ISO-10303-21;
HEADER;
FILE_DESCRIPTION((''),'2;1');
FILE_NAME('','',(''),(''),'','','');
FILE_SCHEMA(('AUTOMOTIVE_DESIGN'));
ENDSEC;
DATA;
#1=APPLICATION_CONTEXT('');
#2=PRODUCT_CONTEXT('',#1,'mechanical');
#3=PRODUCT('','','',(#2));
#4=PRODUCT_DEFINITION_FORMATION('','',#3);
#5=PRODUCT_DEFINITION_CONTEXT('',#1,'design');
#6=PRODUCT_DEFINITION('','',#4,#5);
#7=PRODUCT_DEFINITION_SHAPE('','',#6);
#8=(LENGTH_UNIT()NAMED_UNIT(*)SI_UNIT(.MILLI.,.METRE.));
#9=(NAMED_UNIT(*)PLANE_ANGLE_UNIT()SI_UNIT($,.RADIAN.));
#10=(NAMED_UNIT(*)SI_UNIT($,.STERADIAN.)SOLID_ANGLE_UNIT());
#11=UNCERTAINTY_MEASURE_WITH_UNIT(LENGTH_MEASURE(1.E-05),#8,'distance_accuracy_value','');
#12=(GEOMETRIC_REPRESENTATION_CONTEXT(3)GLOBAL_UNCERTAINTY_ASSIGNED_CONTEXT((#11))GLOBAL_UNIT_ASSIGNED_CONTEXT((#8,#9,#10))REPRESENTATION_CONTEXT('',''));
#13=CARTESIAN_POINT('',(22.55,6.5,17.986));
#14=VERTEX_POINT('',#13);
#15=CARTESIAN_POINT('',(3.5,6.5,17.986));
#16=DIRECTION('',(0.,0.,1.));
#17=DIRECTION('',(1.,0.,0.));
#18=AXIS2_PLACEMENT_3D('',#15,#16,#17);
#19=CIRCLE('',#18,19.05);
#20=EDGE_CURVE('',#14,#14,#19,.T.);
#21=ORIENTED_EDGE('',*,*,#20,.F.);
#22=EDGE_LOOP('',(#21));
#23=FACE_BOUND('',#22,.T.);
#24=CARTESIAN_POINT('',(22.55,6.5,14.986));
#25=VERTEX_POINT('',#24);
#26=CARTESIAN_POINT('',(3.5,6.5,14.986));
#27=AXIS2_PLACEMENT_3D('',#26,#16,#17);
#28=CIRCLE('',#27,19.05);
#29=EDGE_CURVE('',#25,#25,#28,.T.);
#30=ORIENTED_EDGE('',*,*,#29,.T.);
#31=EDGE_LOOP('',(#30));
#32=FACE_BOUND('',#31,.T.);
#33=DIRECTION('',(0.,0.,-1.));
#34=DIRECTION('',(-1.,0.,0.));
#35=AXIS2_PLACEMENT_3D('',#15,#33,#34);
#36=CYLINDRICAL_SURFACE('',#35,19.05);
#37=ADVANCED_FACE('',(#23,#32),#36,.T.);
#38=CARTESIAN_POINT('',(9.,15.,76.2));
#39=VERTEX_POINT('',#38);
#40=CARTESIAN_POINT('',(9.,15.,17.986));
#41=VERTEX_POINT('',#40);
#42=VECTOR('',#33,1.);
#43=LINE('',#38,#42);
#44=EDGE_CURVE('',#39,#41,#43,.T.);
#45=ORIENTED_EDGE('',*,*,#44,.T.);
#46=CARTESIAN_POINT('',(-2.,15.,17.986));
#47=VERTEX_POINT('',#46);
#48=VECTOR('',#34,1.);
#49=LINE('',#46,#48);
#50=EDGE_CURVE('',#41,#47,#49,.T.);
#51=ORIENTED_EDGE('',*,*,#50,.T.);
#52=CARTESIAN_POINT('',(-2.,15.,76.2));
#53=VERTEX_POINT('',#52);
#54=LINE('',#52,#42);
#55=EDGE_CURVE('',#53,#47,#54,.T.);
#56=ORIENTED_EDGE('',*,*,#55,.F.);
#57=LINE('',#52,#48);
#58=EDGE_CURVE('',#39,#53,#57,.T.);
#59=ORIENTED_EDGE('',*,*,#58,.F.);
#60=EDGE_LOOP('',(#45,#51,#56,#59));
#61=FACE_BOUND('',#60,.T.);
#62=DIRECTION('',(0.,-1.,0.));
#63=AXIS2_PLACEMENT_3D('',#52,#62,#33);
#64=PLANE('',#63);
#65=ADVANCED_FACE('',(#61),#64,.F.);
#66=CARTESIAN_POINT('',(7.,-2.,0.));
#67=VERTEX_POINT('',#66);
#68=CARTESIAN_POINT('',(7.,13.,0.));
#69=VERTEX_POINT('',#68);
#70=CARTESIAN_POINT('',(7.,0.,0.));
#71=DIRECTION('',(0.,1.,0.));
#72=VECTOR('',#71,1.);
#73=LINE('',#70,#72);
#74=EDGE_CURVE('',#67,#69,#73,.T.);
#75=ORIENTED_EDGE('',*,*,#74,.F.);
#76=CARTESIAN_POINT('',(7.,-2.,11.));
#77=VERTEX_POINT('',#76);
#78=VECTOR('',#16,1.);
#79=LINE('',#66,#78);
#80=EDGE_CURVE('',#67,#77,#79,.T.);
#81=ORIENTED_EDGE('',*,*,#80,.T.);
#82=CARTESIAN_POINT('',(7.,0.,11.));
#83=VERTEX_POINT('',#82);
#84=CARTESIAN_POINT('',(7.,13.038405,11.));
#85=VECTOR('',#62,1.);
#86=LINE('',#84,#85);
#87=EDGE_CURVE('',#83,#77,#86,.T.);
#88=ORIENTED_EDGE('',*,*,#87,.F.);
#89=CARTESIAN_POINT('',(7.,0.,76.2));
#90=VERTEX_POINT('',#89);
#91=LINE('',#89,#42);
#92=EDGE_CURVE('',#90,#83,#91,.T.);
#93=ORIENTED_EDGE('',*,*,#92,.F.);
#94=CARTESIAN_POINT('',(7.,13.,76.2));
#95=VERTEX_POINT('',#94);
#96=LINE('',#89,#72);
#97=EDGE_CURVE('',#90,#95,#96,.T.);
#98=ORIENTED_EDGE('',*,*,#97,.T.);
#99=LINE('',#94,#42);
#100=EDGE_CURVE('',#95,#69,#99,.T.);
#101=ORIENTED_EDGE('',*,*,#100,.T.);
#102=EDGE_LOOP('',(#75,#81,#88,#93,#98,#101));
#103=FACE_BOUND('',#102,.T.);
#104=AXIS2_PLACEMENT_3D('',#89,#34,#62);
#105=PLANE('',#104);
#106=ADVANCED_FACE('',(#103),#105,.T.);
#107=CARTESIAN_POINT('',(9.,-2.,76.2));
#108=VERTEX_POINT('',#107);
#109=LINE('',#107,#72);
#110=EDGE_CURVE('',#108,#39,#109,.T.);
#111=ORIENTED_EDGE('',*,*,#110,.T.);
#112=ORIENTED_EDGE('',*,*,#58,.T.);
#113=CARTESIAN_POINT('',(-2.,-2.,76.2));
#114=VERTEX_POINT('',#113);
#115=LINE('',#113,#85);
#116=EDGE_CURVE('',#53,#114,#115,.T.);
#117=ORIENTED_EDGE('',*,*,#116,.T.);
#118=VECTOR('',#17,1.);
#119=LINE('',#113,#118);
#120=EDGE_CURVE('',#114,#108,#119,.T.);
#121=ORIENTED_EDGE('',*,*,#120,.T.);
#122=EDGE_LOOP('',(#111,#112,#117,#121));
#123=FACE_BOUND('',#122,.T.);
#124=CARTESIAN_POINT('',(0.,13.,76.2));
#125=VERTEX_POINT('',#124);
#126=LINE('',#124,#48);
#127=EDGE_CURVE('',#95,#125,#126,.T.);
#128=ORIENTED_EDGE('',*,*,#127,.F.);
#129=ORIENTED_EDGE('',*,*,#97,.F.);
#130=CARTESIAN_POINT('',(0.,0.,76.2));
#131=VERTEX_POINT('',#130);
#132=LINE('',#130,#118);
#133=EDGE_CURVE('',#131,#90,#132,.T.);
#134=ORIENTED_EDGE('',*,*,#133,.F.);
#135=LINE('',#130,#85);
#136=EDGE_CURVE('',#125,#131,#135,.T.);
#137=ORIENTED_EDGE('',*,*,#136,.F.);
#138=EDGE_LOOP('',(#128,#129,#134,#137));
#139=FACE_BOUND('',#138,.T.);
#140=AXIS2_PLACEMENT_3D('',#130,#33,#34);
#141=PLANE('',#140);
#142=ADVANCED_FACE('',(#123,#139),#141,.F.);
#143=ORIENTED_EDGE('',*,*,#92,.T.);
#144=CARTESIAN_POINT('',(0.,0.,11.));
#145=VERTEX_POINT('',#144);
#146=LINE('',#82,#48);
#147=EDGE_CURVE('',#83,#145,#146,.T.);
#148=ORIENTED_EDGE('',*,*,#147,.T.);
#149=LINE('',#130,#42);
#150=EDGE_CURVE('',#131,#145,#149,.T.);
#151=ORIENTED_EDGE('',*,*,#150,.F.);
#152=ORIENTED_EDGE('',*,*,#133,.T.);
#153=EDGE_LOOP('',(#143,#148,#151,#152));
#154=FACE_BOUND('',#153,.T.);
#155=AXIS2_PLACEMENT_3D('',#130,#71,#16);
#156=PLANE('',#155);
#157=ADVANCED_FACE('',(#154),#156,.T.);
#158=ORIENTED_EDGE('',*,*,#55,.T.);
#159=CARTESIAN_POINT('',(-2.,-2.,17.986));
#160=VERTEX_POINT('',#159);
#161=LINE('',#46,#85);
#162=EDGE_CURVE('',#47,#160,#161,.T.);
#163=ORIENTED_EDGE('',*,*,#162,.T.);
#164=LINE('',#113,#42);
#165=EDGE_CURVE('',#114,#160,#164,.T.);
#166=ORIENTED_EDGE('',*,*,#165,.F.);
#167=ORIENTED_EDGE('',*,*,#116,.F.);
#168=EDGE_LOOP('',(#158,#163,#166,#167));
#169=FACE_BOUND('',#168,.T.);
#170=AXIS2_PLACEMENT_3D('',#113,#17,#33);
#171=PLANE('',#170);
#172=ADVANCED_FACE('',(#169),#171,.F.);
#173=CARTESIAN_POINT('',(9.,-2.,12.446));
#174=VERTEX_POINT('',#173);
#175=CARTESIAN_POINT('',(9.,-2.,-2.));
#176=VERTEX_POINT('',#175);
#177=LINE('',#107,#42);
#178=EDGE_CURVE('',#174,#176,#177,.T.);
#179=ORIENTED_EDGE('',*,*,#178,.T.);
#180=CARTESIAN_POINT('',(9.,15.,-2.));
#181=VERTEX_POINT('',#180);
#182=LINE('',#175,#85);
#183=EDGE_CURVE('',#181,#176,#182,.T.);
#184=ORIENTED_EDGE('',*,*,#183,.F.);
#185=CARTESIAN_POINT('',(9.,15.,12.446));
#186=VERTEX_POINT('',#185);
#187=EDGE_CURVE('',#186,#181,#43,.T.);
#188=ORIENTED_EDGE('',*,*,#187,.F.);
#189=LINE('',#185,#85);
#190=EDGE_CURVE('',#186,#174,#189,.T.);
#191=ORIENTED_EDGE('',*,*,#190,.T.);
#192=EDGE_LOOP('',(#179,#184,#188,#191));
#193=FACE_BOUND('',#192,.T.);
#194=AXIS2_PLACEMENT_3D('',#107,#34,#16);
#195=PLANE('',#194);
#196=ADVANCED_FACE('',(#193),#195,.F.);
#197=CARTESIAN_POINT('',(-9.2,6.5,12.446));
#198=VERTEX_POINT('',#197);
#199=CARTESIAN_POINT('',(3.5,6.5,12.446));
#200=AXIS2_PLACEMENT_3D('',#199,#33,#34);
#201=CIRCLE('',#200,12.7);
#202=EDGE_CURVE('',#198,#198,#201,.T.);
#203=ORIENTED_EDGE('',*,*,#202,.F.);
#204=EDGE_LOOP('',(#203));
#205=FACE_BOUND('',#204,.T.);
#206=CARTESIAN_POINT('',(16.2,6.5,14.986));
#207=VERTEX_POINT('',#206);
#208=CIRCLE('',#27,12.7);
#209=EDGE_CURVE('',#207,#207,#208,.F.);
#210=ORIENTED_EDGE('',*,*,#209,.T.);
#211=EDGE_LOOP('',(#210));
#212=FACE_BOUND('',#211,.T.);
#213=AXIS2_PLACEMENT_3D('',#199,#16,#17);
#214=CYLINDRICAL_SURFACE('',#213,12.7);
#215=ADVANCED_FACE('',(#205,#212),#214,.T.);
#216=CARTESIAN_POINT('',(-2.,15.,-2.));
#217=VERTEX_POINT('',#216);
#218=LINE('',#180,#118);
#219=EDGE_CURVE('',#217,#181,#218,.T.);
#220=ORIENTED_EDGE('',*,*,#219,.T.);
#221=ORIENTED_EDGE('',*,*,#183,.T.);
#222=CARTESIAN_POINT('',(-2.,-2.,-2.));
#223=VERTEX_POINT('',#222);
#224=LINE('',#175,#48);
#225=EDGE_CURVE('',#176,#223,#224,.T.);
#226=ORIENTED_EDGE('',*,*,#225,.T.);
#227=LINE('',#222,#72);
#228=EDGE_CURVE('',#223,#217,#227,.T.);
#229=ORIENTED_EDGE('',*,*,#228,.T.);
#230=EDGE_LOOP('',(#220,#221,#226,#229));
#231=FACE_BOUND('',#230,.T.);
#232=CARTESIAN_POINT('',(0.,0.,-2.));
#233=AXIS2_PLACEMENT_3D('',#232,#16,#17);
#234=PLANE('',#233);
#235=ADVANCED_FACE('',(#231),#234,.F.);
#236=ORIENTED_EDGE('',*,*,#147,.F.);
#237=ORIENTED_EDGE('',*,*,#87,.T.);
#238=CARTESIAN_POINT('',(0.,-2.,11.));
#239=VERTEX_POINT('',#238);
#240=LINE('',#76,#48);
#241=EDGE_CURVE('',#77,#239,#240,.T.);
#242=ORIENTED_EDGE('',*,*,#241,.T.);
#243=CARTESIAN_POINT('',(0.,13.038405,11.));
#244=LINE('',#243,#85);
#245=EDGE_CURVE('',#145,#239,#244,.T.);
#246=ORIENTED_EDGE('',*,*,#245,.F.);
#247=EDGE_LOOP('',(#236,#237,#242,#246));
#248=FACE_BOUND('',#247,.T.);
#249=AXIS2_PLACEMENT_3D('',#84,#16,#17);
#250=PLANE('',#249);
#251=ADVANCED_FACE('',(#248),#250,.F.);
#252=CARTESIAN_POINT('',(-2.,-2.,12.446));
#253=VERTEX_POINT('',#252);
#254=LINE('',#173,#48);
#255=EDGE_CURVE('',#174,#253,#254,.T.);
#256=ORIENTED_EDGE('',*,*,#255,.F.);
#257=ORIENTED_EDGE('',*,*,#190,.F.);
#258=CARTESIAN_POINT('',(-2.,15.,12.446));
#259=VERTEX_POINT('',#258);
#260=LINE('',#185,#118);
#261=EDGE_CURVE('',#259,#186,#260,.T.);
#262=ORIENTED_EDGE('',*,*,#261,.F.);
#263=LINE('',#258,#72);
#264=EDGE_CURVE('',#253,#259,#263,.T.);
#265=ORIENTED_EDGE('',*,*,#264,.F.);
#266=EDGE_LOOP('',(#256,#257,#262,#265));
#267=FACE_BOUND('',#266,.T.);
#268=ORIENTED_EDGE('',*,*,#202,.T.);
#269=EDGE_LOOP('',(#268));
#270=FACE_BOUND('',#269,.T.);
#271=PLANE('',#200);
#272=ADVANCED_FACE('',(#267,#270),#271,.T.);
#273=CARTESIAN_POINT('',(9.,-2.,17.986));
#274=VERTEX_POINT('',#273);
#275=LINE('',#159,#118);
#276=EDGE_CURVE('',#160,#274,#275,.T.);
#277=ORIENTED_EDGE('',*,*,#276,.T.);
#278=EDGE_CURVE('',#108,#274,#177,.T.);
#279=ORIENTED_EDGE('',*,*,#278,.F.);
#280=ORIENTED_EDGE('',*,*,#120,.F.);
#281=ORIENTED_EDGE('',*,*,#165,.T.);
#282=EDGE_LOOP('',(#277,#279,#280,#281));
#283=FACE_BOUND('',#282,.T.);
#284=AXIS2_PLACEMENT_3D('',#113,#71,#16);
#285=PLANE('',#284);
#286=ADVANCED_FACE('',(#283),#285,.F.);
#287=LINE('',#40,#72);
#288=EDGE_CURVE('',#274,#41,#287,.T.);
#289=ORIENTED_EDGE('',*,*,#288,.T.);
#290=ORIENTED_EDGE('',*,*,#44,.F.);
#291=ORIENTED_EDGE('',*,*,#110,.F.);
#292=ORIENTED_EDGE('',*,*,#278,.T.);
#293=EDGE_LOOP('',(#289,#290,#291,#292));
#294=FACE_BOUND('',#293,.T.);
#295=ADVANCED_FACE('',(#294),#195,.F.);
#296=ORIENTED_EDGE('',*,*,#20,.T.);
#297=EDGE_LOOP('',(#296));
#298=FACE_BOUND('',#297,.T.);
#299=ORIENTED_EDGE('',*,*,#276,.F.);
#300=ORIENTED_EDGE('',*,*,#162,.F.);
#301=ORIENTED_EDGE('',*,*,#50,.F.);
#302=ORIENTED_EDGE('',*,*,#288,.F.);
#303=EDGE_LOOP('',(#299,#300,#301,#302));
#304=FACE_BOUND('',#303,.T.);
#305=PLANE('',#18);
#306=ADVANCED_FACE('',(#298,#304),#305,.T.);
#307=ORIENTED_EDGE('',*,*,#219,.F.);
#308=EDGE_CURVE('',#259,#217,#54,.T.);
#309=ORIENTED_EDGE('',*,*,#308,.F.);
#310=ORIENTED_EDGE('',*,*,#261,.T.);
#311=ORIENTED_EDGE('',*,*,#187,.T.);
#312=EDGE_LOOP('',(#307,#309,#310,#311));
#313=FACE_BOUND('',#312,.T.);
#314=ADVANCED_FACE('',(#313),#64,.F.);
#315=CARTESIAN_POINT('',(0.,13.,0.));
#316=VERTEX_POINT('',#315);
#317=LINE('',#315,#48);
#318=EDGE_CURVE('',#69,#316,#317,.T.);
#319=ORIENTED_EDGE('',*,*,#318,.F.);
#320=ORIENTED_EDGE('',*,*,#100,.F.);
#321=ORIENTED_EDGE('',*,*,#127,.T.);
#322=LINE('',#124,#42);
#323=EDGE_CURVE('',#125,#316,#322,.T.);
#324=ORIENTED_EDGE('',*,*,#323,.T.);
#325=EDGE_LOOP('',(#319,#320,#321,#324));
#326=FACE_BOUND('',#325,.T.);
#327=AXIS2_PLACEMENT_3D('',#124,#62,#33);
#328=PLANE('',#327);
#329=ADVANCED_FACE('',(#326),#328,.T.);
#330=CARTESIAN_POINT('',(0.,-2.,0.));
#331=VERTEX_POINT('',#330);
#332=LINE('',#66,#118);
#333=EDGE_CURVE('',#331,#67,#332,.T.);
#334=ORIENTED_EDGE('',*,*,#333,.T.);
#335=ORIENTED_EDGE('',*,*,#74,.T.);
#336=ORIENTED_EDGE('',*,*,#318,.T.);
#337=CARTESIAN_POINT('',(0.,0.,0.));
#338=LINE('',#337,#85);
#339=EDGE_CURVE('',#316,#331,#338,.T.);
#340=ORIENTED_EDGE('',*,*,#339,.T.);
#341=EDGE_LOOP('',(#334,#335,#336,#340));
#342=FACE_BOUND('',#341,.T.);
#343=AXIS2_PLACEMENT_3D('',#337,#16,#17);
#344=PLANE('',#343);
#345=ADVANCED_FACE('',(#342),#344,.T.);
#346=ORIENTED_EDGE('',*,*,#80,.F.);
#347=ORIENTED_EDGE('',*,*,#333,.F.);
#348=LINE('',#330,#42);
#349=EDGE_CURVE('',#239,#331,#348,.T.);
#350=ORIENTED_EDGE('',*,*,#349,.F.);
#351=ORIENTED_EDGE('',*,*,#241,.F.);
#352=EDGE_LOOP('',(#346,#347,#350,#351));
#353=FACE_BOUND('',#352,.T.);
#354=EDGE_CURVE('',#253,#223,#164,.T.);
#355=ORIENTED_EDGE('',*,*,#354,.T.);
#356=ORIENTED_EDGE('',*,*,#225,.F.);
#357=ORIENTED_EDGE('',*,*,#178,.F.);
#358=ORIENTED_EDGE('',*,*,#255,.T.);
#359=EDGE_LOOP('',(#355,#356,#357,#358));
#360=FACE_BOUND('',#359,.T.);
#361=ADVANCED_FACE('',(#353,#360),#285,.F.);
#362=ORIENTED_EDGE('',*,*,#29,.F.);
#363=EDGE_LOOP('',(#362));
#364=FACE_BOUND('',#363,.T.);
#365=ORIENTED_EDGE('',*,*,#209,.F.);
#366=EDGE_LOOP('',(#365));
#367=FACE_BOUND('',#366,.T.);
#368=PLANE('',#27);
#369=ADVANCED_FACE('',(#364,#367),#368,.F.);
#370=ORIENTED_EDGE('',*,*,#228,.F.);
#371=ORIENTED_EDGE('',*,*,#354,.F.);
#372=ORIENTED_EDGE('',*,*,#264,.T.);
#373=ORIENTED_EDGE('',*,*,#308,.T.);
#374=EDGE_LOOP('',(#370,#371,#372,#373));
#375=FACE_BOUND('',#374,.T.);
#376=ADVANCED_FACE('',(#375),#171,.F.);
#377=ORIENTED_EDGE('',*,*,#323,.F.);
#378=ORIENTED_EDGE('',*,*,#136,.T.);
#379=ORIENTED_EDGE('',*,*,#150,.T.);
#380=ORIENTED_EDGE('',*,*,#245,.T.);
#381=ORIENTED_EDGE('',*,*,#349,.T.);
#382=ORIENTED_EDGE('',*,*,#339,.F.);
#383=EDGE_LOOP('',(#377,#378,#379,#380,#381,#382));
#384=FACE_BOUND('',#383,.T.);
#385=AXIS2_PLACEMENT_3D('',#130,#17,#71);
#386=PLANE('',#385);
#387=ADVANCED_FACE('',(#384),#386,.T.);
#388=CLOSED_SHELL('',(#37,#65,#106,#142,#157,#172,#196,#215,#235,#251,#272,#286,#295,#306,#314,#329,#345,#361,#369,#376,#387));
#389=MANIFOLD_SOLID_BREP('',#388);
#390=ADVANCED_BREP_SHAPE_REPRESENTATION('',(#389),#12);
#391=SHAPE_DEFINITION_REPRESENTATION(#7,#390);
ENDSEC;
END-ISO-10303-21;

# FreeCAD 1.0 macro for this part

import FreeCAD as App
import Part
import Sketcher


def add_polygon(sketch, points):
    """Adds a closed chain of lines whose ends are joined by coincident constraints."""
    first, n = sketch.GeometryCount, len(points)
    for a, b in zip(points, points[1:] + points[:1]):
        sketch.addGeometry(Part.LineSegment(App.Vector(*a, 0), App.Vector(*b, 0)), False)
    for i in range(n):
        sketch.addConstraint(Sketcher.Constraint("Coincident", first + i, 2, first + (i + 1) % n, 1))

doc = App.newDocument("Part")
params = doc.addObject("Spreadsheet::Sheet", "Params")
for row, (alias, value) in enumerate([
    ("sketch1_width", "11 mm"),
    ("sketch1_width2", "7 mm"),
    ("sketch1_height", "17 mm"),
    ("sketch1_height2", "13 mm"),
    ("pad1_length", "76.2 mm"),
    ("sketch2_width", "11 mm"),
    ("sketch2_height", "17 mm"),
    ("pad2_length", "2 mm"),
    ("sketch3_width", "7 mm"),
    ("sketch3_height", "11 mm"),
    ("pocket1_length", "2 mm"),
    ("sketch4_diameter", "38.1 mm"),
    ("sketch4_width", "11 mm"),
    ("sketch4_height", "17 mm"),
    ("pad3_length", "3 mm"),
    ("sketch5_diameter", "25.4 mm"),
    ("sketch5_width", "11 mm"),
    ("sketch5_height", "17 mm"),
    ("pad4_length", "2.54 mm"),
], start=1):
    params.set(f"A{row}", alias)
    params.set(f"B{row}", "=" + value)
    params.setAlias(f"B{row}", alias)

body = doc.addObject("PartDesign::Body", "Body")

sketch1 = body.newObject("Sketcher::SketchObject", "Sketch")
sketch1.AttachmentSupport = (doc.getObject("XY_Plane"), [""])
sketch1.MapMode = "FlatFace"
add_polygon(sketch1, [(-2, 15), (-2, -2), (9, -2), (9, 15)])
add_polygon(sketch1, [(7, 0), (0, 0), (0, 13), (7, 13)])
sketch1.addConstraint(Sketcher.Constraint("Vertical", 0))
sketch1.addConstraint(Sketcher.Constraint("Horizontal", 1))
sketch1.addConstraint(Sketcher.Constraint("Vertical", 2))
sketch1.addConstraint(Sketcher.Constraint("Horizontal", 3))
sketch1.addConstraint(Sketcher.Constraint("Horizontal", 4))
sketch1.addConstraint(Sketcher.Constraint("Vertical", 5))
sketch1.addConstraint(Sketcher.Constraint("Horizontal", 6))
sketch1.addConstraint(Sketcher.Constraint("Vertical", 7))
sketch1.addConstraint(Sketcher.Constraint("Coincident", 4, 2, -1, 1))
sketch1.addConstraint(Sketcher.Constraint("DistanceX", 1, 1, 1, 2, 11.0))
sketch1.addConstraint(Sketcher.Constraint("DistanceX", 4, 2, 4, 1, 7.0))
sketch1.addConstraint(Sketcher.Constraint("DistanceY", 0, 2, 0, 1, 17.0))
sketch1.addConstraint(Sketcher.Constraint("DistanceY", 5, 1, 5, 2, 13.0))
sketch1.addConstraint(Sketcher.Constraint("DistanceX", 0, 2, -1, 1, 2.0))
sketch1.addConstraint(Sketcher.Constraint("DistanceY", 0, 2, -1, 1, 2.0))
sketch1.setExpression("Constraints[17]", "Params.sketch1_width")
sketch1.setExpression("Constraints[18]", "Params.sketch1_width2")
sketch1.setExpression("Constraints[19]", "Params.sketch1_height")
sketch1.setExpression("Constraints[20]", "Params.sketch1_height2")
pad1 = body.newObject("PartDesign::Pad", "Pad")
pad1.Profile = sketch1
pad1.setExpression("Length", "Params.pad1_length")

sketch2 = body.newObject("Sketcher::SketchObject", "Sketch001")
sketch2.AttachmentSupport = (doc.getObject("XY_Plane"), [""])
sketch2.MapMode = "FlatFace"
add_polygon(sketch2, [(9, 15), (9, -2), (-2, -2), (-2, 15)])
sketch2.addConstraint(Sketcher.Constraint("Vertical", 0))
sketch2.addConstraint(Sketcher.Constraint("Horizontal", 1))
sketch2.addConstraint(Sketcher.Constraint("Vertical", 2))
sketch2.addConstraint(Sketcher.Constraint("Horizontal", 3))
sketch2.addConstraint(Sketcher.Constraint("DistanceX", 1, 2, 1, 1, 11.0))
sketch2.addConstraint(Sketcher.Constraint("DistanceY", 0, 2, 0, 1, 17.0))
sketch2.addConstraint(Sketcher.Constraint("DistanceX", -1, 1, 0, 2, 9.0))
sketch2.addConstraint(Sketcher.Constraint("DistanceY", 0, 2, -1, 1, 2.0))
sketch2.setExpression("Constraints[8]", "Params.sketch2_width")
sketch2.setExpression("Constraints[9]", "Params.sketch2_height")
pad2 = body.newObject("PartDesign::Pad", "Pad001")
pad2.Profile = sketch2
pad2.setExpression("Length", "Params.pad2_length")
pad2.Reversed = True

sketch3 = body.newObject("Sketcher::SketchObject", "Sketch002")
sketch3.AttachmentSupport = (doc.getObject("XZ_Plane"), [""])
sketch3.MapMode = "FlatFace"
sketch3.AttachmentOffset = App.Placement(App.Vector(0, 0, 2), App.Rotation())
add_polygon(sketch3, [(7, 0), (7, 11), (0, 11), (0, 0)])
sketch3.addConstraint(Sketcher.Constraint("Vertical", 0))
sketch3.addConstraint(Sketcher.Constraint("Horizontal", 1))
sketch3.addConstraint(Sketcher.Constraint("Vertical", 2))
sketch3.addConstraint(Sketcher.Constraint("Horizontal", 3))
sketch3.addConstraint(Sketcher.Constraint("Coincident", 2, 2, -1, 1))
sketch3.addConstraint(Sketcher.Constraint("DistanceX", 1, 2, 1, 1, 7.0))
sketch3.addConstraint(Sketcher.Constraint("DistanceY", 0, 1, 0, 2, 11.0))
sketch3.setExpression("Constraints[9]", "Params.sketch3_width")
sketch3.setExpression("Constraints[10]", "Params.sketch3_height")
pocket1 = body.newObject("PartDesign::Pocket", "Pocket")
pocket1.Profile = sketch3
pocket1.setExpression("Length", "Params.pocket1_length")

sketch4 = body.newObject("Sketcher::SketchObject", "Sketch003")
sketch4.AttachmentSupport = (doc.getObject("XY_Plane"), [""])
sketch4.MapMode = "FlatFace"
sketch4.AttachmentOffset = App.Placement(App.Vector(0, 0, 14.986), App.Rotation())
sketch4.addGeometry(Part.Circle(App.Vector(4, 6, 0), App.Vector(0, 0, 1), 19), False)
add_polygon(sketch4, [(9, -2), (-2, -2), (-2, 15), (9, 15)])
sketch4.addConstraint(Sketcher.Constraint("Horizontal", 1))
sketch4.addConstraint(Sketcher.Constraint("Vertical", 2))
sketch4.addConstraint(Sketcher.Constraint("Horizontal", 3))
sketch4.addConstraint(Sketcher.Constraint("Vertical", 4))
sketch4.addConstraint(Sketcher.Constraint("Diameter", 0, 38.1))
sketch4.addConstraint(Sketcher.Constraint("DistanceX", 1, 2, 1, 1, 11.0))
sketch4.addConstraint(Sketcher.Constraint("DistanceY", 2, 1, 2, 2, 17.0))
sketch4.addConstraint(Sketcher.Constraint("DistanceX", 1, 2, -1, 1, 2.0))
sketch4.addConstraint(Sketcher.Constraint("DistanceY", 1, 2, -1, 1, 2.0))
sketch4.addConstraint(Sketcher.Constraint("DistanceX", -1, 1, 0, 3, 3.5))
sketch4.addConstraint(Sketcher.Constraint("DistanceY", -1, 1, 0, 3, 6.5))
sketch4.setExpression("Constraints[8]", "Params.sketch4_diameter")
sketch4.setExpression("Constraints[9]", "Params.sketch4_width")
sketch4.setExpression("Constraints[10]", "Params.sketch4_height")
pad3 = body.newObject("PartDesign::Pad", "Pad002")
pad3.Profile = sketch4
pad3.setExpression("Length", "Params.pad3_length")

sketch5 = body.newObject("Sketcher::SketchObject", "Sketch004")
sketch5.AttachmentSupport = (doc.getObject("XY_Plane"), [""])
sketch5.MapMode = "FlatFace"
sketch5.AttachmentOffset = App.Placement(App.Vector(0, 0, 14.986), App.Rotation())
sketch5.addGeometry(Part.Circle(App.Vector(4, 6, 0), App.Vector(0, 0, 1), 13), False)
add_polygon(sketch5, [(-2, -2), (9, -2), (9, 15), (-2, 15)])
sketch5.addConstraint(Sketcher.Constraint("Horizontal", 1))
sketch5.addConstraint(Sketcher.Constraint("Vertical", 2))
sketch5.addConstraint(Sketcher.Constraint("Horizontal", 3))
sketch5.addConstraint(Sketcher.Constraint("Vertical", 4))
sketch5.addConstraint(Sketcher.Constraint("Diameter", 0, 25.4))
sketch5.addConstraint(Sketcher.Constraint("DistanceX", 1, 1, 1, 2, 11.0))
sketch5.addConstraint(Sketcher.Constraint("DistanceY", 2, 1, 2, 2, 17.0))
sketch5.addConstraint(Sketcher.Constraint("DistanceX", -1, 1, 1, 2, 9.0))
sketch5.addConstraint(Sketcher.Constraint("DistanceY", 1, 2, -1, 1, 2.0))
sketch5.addConstraint(Sketcher.Constraint("DistanceX", -1, 1, 0, 3, 3.5))
sketch5.addConstraint(Sketcher.Constraint("DistanceY", -1, 1, 0, 3, 6.5))
sketch5.setExpression("Constraints[8]", "Params.sketch5_diameter")
sketch5.setExpression("Constraints[9]", "Params.sketch5_width")
sketch5.setExpression("Constraints[10]", "Params.sketch5_height")
pad4 = body.newObject("PartDesign::Pad", "Pad003")
pad4.Profile = sketch5
pad4.setExpression("Length", "Params.pad4_length")
pad4.Reversed = True

doc.recompute()
